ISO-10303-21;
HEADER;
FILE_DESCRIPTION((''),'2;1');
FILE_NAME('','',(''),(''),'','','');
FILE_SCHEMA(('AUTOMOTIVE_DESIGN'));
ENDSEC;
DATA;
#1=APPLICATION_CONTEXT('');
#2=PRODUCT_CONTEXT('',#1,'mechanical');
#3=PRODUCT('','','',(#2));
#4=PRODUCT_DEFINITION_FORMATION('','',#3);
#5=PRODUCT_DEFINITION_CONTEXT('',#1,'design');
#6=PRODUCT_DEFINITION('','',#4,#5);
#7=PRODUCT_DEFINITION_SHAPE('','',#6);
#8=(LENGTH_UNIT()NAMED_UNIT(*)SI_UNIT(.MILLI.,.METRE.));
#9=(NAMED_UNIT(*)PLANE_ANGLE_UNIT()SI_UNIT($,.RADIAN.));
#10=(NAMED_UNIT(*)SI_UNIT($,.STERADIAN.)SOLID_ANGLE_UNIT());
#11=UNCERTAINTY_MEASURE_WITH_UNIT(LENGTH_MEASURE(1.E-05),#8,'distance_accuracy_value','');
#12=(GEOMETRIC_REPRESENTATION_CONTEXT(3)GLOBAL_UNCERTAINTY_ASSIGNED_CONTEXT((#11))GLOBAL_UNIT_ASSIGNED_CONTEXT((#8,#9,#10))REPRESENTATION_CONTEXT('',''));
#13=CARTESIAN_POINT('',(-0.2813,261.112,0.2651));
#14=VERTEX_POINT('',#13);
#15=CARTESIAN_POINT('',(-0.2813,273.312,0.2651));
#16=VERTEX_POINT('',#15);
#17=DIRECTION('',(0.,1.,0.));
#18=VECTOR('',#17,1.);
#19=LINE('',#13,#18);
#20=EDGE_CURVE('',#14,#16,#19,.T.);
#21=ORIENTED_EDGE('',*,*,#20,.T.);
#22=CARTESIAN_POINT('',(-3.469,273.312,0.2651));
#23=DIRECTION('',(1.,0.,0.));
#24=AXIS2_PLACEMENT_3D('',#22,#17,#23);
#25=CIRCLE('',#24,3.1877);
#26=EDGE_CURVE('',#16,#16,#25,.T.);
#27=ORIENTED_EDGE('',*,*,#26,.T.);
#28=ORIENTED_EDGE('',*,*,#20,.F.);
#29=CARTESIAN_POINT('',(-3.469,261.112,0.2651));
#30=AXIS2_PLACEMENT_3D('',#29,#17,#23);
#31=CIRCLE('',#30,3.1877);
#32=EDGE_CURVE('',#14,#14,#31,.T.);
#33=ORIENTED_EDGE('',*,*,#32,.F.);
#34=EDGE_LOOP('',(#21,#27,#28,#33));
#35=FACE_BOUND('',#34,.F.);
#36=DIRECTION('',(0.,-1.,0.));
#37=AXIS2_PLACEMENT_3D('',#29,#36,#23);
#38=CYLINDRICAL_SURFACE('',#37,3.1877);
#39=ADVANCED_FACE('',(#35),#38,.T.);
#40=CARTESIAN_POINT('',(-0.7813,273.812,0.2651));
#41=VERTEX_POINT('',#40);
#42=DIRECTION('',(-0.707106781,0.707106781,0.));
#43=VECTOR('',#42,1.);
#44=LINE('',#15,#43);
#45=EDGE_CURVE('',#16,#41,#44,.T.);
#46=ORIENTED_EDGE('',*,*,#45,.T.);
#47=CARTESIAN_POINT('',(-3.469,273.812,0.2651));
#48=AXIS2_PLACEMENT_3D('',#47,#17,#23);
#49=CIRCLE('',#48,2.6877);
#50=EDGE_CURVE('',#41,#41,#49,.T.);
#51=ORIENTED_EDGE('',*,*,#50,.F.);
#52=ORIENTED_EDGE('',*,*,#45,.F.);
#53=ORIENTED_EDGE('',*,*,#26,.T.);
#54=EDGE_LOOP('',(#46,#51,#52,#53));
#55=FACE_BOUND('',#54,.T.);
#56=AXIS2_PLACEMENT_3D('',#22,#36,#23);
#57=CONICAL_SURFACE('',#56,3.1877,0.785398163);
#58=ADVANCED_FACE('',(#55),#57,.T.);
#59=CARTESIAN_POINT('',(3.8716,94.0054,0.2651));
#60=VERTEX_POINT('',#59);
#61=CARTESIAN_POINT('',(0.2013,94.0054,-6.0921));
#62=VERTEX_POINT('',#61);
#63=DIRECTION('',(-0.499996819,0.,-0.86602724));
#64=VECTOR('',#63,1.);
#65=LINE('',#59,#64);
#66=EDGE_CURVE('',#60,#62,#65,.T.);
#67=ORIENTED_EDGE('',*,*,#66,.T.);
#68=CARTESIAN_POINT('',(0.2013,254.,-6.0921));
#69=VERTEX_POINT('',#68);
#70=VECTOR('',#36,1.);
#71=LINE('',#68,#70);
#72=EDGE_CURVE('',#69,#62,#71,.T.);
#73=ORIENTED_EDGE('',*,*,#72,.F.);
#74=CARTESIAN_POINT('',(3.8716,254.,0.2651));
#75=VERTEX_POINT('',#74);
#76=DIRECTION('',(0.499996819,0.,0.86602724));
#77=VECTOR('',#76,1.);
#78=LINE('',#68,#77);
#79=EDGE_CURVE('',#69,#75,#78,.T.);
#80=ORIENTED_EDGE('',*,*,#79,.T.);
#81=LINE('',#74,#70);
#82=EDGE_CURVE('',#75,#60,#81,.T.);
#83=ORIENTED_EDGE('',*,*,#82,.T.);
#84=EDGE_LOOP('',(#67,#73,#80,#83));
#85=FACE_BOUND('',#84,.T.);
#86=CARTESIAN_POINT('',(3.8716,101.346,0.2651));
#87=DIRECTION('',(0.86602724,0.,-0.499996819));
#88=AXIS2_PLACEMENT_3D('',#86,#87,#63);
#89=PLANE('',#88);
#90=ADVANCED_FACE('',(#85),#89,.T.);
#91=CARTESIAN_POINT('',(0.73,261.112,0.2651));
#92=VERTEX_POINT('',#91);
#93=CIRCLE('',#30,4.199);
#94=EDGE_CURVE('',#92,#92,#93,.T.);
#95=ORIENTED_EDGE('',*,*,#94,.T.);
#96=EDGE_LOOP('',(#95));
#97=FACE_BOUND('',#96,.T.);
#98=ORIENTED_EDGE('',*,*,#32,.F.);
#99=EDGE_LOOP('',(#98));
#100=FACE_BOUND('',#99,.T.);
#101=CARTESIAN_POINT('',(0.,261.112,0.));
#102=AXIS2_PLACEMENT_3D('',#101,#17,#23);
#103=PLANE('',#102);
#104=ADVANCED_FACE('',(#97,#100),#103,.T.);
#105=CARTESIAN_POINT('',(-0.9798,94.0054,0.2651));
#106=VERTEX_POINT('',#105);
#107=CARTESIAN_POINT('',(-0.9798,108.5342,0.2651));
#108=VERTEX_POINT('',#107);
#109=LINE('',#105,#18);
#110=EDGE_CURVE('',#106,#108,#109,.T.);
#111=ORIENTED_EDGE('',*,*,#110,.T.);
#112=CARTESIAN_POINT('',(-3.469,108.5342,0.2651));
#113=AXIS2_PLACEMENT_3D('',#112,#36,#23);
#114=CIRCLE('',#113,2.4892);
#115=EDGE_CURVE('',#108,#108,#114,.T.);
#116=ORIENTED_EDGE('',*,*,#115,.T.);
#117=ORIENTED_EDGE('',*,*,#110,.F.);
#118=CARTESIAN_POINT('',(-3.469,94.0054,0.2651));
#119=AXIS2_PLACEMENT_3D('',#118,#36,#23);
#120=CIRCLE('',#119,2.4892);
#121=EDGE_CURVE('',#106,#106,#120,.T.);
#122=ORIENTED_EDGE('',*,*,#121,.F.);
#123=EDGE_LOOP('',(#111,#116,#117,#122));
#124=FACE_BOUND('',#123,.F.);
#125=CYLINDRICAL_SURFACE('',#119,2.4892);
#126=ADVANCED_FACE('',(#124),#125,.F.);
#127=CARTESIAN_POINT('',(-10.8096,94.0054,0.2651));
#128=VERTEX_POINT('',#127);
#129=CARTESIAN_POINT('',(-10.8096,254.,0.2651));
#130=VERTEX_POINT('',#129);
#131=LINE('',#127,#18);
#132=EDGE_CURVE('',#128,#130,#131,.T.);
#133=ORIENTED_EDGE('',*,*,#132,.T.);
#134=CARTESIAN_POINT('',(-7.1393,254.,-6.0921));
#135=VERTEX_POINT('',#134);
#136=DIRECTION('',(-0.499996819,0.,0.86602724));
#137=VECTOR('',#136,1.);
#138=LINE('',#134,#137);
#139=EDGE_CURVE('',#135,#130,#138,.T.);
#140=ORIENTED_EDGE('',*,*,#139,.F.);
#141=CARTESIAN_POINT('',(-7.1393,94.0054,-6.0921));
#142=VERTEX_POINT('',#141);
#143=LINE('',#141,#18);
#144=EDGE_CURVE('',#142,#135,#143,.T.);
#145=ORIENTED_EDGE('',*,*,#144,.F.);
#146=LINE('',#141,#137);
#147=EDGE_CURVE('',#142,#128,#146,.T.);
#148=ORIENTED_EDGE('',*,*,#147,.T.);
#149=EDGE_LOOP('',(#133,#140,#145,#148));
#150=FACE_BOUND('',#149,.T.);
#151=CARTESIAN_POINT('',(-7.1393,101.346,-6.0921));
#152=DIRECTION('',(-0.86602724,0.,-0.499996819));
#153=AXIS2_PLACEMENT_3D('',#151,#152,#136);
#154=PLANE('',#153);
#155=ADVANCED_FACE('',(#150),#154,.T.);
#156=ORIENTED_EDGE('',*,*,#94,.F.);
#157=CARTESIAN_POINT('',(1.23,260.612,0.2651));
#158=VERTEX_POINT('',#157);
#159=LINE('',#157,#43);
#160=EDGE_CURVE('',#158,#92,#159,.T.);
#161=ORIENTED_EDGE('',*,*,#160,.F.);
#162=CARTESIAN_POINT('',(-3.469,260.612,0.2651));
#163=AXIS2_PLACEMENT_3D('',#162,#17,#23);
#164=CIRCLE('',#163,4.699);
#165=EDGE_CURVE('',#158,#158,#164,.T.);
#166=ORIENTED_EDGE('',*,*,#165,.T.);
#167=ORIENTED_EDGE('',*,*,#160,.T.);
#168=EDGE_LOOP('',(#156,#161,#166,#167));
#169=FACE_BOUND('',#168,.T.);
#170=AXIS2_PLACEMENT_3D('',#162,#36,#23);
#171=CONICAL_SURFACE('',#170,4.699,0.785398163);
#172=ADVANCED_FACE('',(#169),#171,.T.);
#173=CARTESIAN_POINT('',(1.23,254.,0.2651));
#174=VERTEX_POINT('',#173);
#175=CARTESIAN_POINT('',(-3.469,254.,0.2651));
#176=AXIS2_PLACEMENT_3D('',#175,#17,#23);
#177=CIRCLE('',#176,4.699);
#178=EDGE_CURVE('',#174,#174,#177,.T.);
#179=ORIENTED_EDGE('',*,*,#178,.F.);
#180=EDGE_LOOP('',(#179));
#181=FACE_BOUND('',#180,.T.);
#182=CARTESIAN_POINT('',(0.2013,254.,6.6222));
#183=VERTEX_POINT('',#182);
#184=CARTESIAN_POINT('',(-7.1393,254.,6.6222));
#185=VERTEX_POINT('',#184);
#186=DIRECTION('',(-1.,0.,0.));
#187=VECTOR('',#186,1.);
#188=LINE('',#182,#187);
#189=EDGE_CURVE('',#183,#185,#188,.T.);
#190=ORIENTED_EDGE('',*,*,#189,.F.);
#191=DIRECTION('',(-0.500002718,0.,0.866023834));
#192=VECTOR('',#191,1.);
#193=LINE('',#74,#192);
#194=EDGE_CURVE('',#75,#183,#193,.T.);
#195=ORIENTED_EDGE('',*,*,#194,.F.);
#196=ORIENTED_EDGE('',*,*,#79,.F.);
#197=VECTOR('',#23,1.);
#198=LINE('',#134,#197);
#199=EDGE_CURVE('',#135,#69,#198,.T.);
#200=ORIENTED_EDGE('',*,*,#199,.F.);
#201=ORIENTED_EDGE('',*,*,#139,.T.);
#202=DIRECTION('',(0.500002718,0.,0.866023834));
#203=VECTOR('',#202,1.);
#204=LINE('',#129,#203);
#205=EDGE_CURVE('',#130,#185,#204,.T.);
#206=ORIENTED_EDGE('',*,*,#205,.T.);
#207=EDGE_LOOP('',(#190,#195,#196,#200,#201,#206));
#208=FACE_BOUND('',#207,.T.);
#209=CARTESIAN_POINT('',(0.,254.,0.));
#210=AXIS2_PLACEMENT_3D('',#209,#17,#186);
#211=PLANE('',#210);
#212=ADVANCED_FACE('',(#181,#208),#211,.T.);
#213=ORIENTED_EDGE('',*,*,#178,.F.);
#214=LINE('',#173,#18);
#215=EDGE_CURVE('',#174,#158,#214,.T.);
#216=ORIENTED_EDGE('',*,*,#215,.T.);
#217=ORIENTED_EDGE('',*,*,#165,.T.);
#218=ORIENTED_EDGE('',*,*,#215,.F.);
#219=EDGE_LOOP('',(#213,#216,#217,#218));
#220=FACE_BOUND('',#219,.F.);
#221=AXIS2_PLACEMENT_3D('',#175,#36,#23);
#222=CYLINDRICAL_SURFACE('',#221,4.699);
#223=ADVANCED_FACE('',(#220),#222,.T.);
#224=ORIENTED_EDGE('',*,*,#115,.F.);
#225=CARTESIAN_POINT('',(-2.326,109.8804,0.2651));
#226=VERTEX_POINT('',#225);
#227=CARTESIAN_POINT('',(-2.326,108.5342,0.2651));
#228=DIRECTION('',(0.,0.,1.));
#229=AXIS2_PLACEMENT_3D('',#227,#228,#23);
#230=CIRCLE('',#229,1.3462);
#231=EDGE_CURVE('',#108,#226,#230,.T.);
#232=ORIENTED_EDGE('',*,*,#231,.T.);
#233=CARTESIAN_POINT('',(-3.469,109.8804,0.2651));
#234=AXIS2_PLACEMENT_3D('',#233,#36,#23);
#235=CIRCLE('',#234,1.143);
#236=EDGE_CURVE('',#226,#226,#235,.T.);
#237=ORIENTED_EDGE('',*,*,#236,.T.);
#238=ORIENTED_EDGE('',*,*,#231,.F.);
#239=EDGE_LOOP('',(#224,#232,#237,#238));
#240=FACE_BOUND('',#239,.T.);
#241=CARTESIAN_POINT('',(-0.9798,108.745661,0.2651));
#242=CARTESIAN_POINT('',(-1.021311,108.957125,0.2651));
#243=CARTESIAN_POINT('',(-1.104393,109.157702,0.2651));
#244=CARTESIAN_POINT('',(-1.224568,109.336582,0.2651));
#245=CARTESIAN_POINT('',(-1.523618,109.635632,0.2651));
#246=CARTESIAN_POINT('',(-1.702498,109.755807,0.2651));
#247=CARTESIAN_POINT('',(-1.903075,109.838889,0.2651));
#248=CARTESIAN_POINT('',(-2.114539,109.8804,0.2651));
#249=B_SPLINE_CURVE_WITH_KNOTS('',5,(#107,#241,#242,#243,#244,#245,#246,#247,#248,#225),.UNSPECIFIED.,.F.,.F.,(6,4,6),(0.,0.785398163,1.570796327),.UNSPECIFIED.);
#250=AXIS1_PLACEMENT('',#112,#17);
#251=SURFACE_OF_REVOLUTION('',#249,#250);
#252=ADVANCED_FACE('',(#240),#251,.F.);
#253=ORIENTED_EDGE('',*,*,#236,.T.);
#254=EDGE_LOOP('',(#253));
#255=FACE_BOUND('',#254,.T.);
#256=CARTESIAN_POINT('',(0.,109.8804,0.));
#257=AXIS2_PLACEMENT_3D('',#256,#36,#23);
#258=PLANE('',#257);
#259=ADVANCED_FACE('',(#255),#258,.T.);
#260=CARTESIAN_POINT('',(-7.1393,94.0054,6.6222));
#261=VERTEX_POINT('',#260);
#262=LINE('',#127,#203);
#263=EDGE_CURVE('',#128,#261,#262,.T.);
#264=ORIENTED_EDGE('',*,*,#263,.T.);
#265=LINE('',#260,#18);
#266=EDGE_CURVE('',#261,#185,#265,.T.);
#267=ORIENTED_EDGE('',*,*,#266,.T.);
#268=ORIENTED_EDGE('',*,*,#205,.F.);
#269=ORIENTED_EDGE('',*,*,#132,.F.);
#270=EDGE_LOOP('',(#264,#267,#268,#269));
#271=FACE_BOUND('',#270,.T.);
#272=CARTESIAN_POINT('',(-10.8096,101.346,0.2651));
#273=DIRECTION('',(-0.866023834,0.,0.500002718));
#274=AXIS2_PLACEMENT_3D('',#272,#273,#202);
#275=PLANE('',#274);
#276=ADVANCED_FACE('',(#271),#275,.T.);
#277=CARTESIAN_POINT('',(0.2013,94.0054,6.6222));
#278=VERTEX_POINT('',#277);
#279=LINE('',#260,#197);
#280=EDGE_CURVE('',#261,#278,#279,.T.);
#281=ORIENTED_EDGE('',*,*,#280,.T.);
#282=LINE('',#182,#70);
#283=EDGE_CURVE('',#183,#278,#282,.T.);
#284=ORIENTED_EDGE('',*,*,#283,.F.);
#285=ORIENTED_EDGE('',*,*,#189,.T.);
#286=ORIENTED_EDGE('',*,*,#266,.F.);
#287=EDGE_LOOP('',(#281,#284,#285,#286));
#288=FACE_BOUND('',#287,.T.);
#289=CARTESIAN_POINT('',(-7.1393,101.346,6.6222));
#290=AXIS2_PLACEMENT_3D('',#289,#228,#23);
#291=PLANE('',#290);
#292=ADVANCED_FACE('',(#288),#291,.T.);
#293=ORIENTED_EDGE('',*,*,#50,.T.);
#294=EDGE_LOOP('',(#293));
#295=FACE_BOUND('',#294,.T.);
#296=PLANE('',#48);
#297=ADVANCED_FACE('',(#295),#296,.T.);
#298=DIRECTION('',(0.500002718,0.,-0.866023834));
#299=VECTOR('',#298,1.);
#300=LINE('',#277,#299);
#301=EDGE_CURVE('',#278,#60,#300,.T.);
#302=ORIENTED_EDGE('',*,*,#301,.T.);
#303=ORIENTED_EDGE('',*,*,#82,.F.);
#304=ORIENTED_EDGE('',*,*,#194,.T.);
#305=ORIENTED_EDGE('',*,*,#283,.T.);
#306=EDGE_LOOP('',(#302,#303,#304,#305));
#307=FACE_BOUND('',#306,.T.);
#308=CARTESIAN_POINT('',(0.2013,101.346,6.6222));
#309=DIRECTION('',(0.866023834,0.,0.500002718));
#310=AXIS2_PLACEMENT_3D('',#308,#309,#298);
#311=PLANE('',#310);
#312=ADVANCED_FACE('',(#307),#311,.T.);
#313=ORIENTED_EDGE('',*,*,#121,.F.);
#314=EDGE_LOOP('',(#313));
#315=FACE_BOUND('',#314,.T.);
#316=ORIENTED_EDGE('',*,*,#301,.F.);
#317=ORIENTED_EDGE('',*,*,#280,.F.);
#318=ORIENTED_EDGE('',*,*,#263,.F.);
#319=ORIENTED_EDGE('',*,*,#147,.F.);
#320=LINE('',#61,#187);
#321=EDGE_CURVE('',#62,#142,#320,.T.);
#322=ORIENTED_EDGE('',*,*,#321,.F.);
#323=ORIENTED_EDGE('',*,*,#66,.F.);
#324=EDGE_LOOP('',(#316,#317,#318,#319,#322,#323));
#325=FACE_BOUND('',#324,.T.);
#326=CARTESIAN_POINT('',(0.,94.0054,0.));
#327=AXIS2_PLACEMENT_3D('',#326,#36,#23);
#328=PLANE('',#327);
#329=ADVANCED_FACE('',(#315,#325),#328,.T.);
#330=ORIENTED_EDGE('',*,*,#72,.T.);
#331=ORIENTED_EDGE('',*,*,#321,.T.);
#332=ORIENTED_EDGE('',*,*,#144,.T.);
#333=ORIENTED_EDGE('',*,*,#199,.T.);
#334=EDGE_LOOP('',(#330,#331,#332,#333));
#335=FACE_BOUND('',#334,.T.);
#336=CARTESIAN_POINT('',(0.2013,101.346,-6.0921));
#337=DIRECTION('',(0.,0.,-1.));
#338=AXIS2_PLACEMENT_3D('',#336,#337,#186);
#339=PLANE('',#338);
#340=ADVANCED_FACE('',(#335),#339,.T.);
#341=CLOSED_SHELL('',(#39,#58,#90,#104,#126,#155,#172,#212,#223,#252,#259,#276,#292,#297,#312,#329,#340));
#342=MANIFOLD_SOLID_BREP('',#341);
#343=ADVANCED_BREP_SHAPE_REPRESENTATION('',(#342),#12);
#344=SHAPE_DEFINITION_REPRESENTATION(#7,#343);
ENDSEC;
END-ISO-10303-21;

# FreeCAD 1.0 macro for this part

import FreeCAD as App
import Part
import Sketcher
Q = App.Units.Quantity


def edges_at(feature, points):
    """Names of the edges that pass closest to the given points."""
    edges = feature.Shape.Edges
    near = lambda p: min(range(len(edges)), key=lambda i: edges[i].distToShape(Part.Vertex(*p))[0])
    return sorted({f"Edge{near(p) + 1}" for p in points})

doc = App.newDocument("Part")
params = doc.addObject("Spreadsheet::Sheet", "Params")
for row, (alias, value) in enumerate([
    ("sketch1_width", "0.289 in"),
    ("sketch1_length", "0.289 in"),
    ("pad1_length", "10 in"),
    ("sketch2_diameter", "0.37 in"),
    ("pad2_length", "0.28 in"),
    ("chamfer_size", "0.5 mm"),
    ("sketch3_diameter", "0.251 in"),
    ("pad3_length", "0.5 in"),
    ("chamfer2_size", "0.5 mm"),
    ("sketch4_width", "0.289 in"),
    ("sketch4_length", "0.289 in"),
    ("pocket1_length", "3.99 in"),
    ("sketch5_width", "0.289 in"),
    ("sketch5_length", "0.289 in"),
    ("pad4_length", "0.289 in"),
    ("sketch6_diameter", "0.196 in"),
    ("pocket2_length", "0.625 in"),
    ("fillet_radius", "0.053 in"),
], start=1):
    params.set(f"A{row}", alias)
    params.set(f"B{row}", "=" + value)
    params.setAlias(f"B{row}", alias)

body = doc.addObject("PartDesign::Body", "Body")

sketch1 = doc.addObject("Sketcher::SketchObject", "Sketch")
body.addObject(sketch1)
sketch1.AttachmentSupport = (doc.XZ_Plane, [""])
sketch1.MapMode = "FlatFace"
sketch1.addGeometry([
    Part.LineSegment(App.Vector(0, -6, 0), App.Vector(-7, -6, 0)),
    Part.LineSegment(App.Vector(-7, -6, 0), App.Vector(-11, 0, 0)),
    Part.LineSegment(App.Vector(-11, 0, 0), App.Vector(-7, 7, 0)),
    Part.LineSegment(App.Vector(-7, 7, 0), App.Vector(0, 7, 0)),
    Part.LineSegment(App.Vector(0, 7, 0), App.Vector(4, 0, 0)),
    Part.LineSegment(App.Vector(4, 0, 0), App.Vector(0, -6, 0)),
], False)
sketch1.addConstraint([
    Sketcher.Constraint("Coincident", 0, 2, 1, 1),
    Sketcher.Constraint("Coincident", 1, 2, 2, 1),
    Sketcher.Constraint("Coincident", 2, 2, 3, 1),
    Sketcher.Constraint("Coincident", 3, 2, 4, 1),
    Sketcher.Constraint("Coincident", 4, 2, 5, 1),
    Sketcher.Constraint("Coincident", 5, 2, 0, 1),
    Sketcher.Constraint("Horizontal", 0),
    Sketcher.Constraint("Horizontal", 3),
    Sketcher.Constraint("Parallel", 1, 4),
    Sketcher.Constraint("Parallel", 2, 5),
    Sketcher.Constraint("Horizontal", 1, 2, 4, 2),
    Sketcher.Constraint("Vertical", 0, 2, 2, 2),
    Sketcher.Constraint("Vertical", 3, 2, 5, 2),
    Sketcher.Constraint("Angle", 1, Q("119.9998 deg")),
    Sketcher.Constraint("DistanceX", 0, 2, 0, 1, Q("0.289 in")),
    Sketcher.Constraint("Distance", 1, Q("0.289 in")),
    Sketcher.Constraint("DistanceX", 0, 2, -1, 1, 7.1393),
    Sketcher.Constraint("DistanceY", 0, 2, -1, 1, 6.092),
])
sketch1.setExpression("Constraints[14]", "Params.sketch1_width")
sketch1.setExpression("Constraints[15]", "Params.sketch1_length")
pad1 = doc.addObject("PartDesign::Pad", "Pad")
body.addObject(pad1)
pad1.Profile = sketch1
pad1.setExpression("Length", "Params.pad1_length")
pad1.Reversed = True

sketch2 = doc.addObject("Sketcher::SketchObject", "Sketch001")
body.addObject(sketch2)
sketch2.AttachmentSupport = (doc.XZ_Plane, [""])
sketch2.MapMode = "FlatFace"
sketch2.AttachmentOffset = App.Placement(App.Vector(0, 0, -10 * 25.4), App.Rotation())
sketch2.addGeometry(Part.Circle(App.Vector(-3.5, 0.3, 0), App.Vector(0, 0, 1), 4.7), False)
sketch2.addConstraint([
    Sketcher.Constraint("Diameter", 0, Q("0.37 in")),
    Sketcher.Constraint("DistanceX", 0, 3, -1, 1, 3.469),
    Sketcher.Constraint("DistanceY", -1, 1, 0, 3, 0.265),
])
sketch2.setExpression("Constraints[0]", "Params.sketch2_diameter")
pad2 = doc.addObject("PartDesign::Pad", "Pad001")
body.addObject(pad2)
pad2.Profile = sketch2
pad2.setExpression("Length", "Params.pad2_length")
pad2.Reversed = True
doc.recompute()

chamfer = doc.addObject("PartDesign::Chamfer", "Chamfer")
body.addObject(chamfer)
chamfer.Base = (pad2, edges_at(pad2, [(-8.168, 261.112, 0.265)]))
chamfer.setExpression("Size", "Params.chamfer_size")

sketch3 = doc.addObject("Sketcher::SketchObject", "Sketch002")
body.addObject(sketch3)
sketch3.AttachmentSupport = (doc.XZ_Plane, [""])
sketch3.MapMode = "FlatFace"
sketch3.AttachmentOffset = App.Placement(App.Vector(0, 0, -10.28 * 25.4), App.Rotation())
sketch3.addGeometry(Part.Circle(App.Vector(-3.5, 0.3, 0), App.Vector(0, 0, 1), 3.2), False)
sketch3.addConstraint([
    Sketcher.Constraint("Diameter", 0, Q("0.251 in")),
    Sketcher.Constraint("DistanceX", 0, 3, -1, 1, 3.469),
    Sketcher.Constraint("DistanceY", -1, 1, 0, 3, 0.265),
])
sketch3.setExpression("Constraints[0]", "Params.sketch3_diameter")
pad3 = doc.addObject("PartDesign::Pad", "Pad002")
body.addObject(pad3)
pad3.Profile = sketch3
pad3.setExpression("Length", "Params.pad3_length")
pad3.Reversed = True
doc.recompute()

chamfer2 = doc.addObject("PartDesign::Chamfer", "Chamfer001")
body.addObject(chamfer2)
chamfer2.Base = (pad3, edges_at(pad3, [(-6.657, 273.812, 0.265)]))
chamfer2.setExpression("Size", "Params.chamfer2_size")

sketch4 = doc.addObject("Sketcher::SketchObject", "Sketch003")
body.addObject(sketch4)
sketch4.AttachmentSupport = (doc.XZ_Plane, [""])
sketch4.MapMode = "FlatFace"
sketch4.addGeometry([
    Part.LineSegment(App.Vector(-11, 0, 0), App.Vector(-7, -6, 0)),
    Part.LineSegment(App.Vector(-7, -6, 0), App.Vector(0, -6, 0)),
    Part.LineSegment(App.Vector(0, -6, 0), App.Vector(4, 0, 0)),
    Part.LineSegment(App.Vector(4, 0, 0), App.Vector(0, 7, 0)),
    Part.LineSegment(App.Vector(0, 7, 0), App.Vector(-7, 7, 0)),
    Part.LineSegment(App.Vector(-7, 7, 0), App.Vector(-11, 0, 0)),
], False)
sketch4.addConstraint([
    Sketcher.Constraint("Coincident", 0, 2, 1, 1),
    Sketcher.Constraint("Coincident", 1, 2, 2, 1),
    Sketcher.Constraint("Coincident", 2, 2, 3, 1),
    Sketcher.Constraint("Coincident", 3, 2, 4, 1),
    Sketcher.Constraint("Coincident", 4, 2, 5, 1),
    Sketcher.Constraint("Coincident", 5, 2, 0, 1),
    Sketcher.Constraint("Horizontal", 1),
    Sketcher.Constraint("Horizontal", 4),
    Sketcher.Constraint("Parallel", 0, 3),
    Sketcher.Constraint("Parallel", 2, 5),
    Sketcher.Constraint("Horizontal", 2, 2, 5, 2),
    Sketcher.Constraint("Vertical", 1, 2, 3, 2),
    Sketcher.Constraint("Vertical", 0, 2, 4, 2),
    Sketcher.Constraint("Angle", 0, Q("-60.0002 deg")),
    Sketcher.Constraint("DistanceX", 1, 1, 1, 2, Q("0.289 in")),
    Sketcher.Constraint("Distance", 0, Q("0.289 in")),
    Sketcher.Constraint("DistanceX", 0, 2, -1, 1, 7.1393),
    Sketcher.Constraint("DistanceY", 0, 2, -1, 1, 6.092),
])
sketch4.setExpression("Constraints[14]", "Params.sketch4_width")
sketch4.setExpression("Constraints[15]", "Params.sketch4_length")
pocket1 = doc.addObject("PartDesign::Pocket", "Pocket")
body.addObject(pocket1)
pocket1.Profile = sketch4
pocket1.setExpression("Length", "Params.pocket1_length")

sketch5 = doc.addObject("Sketcher::SketchObject", "Sketch004")
body.addObject(sketch5)
sketch5.AttachmentSupport = (doc.XZ_Plane, [""])
sketch5.MapMode = "FlatFace"
sketch5.AttachmentOffset = App.Placement(App.Vector(0, 0, -3.99 * 25.4), App.Rotation())
sketch5.addGeometry([
    Part.LineSegment(App.Vector(-7, -6, 0), App.Vector(0, -6, 0)),
    Part.LineSegment(App.Vector(0, -6, 0), App.Vector(4, 0, 0)),
    Part.LineSegment(App.Vector(4, 0, 0), App.Vector(0, 7, 0)),
    Part.LineSegment(App.Vector(0, 7, 0), App.Vector(-7, 7, 0)),
    Part.LineSegment(App.Vector(-7, 7, 0), App.Vector(-11, 0, 0)),
    Part.LineSegment(App.Vector(-11, 0, 0), App.Vector(-7, -6, 0)),
], False)
sketch5.addConstraint([
    Sketcher.Constraint("Coincident", 0, 2, 1, 1),
    Sketcher.Constraint("Coincident", 1, 2, 2, 1),
    Sketcher.Constraint("Coincident", 2, 2, 3, 1),
    Sketcher.Constraint("Coincident", 3, 2, 4, 1),
    Sketcher.Constraint("Coincident", 4, 2, 5, 1),
    Sketcher.Constraint("Coincident", 5, 2, 0, 1),
    Sketcher.Constraint("Horizontal", 0),
    Sketcher.Constraint("Horizontal", 3),
    Sketcher.Constraint("Parallel", 1, 4),
    Sketcher.Constraint("Parallel", 2, 5),
    Sketcher.Constraint("Horizontal", 1, 2, 4, 2),
    Sketcher.Constraint("Vertical", 0, 2, 2, 2),
    Sketcher.Constraint("Vertical", 3, 2, 5, 2),
    Sketcher.Constraint("Angle", 1, Q("60.0002 deg")),
    Sketcher.Constraint("DistanceX", 0, 1, 0, 2, Q("0.289 in")),
    Sketcher.Constraint("Distance", 1, Q("0.289 in")),
    Sketcher.Constraint("DistanceX", -1, 1, 0, 2, 0.2013),
    Sketcher.Constraint("DistanceY", 0, 2, -1, 1, 6.092),
])
sketch5.setExpression("Constraints[14]", "Params.sketch5_width")
sketch5.setExpression("Constraints[15]", "Params.sketch5_length")
pad4 = doc.addObject("PartDesign::Pad", "Pad003")
body.addObject(pad4)
pad4.Profile = sketch5
pad4.setExpression("Length", "Params.pad4_length")

sketch6 = doc.addObject("Sketcher::SketchObject", "Sketch005")
body.addObject(sketch6)
sketch6.AttachmentSupport = (doc.XZ_Plane, [""])
sketch6.MapMode = "FlatFace"
sketch6.AttachmentOffset = App.Placement(App.Vector(0, 0, -3.701 * 25.4), App.Rotation())
sketch6.addGeometry(Part.Circle(App.Vector(-3.5, 0.3, 0), App.Vector(0, 0, 1), 2.5), False)
sketch6.addConstraint([
    Sketcher.Constraint("Diameter", 0, Q("0.196 in")),
    Sketcher.Constraint("DistanceX", 0, 3, -1, 1, 3.469),
    Sketcher.Constraint("DistanceY", -1, 1, 0, 3, 0.265),
])
sketch6.setExpression("Constraints[0]", "Params.sketch6_diameter")
pocket2 = doc.addObject("PartDesign::Pocket", "Pocket001")
body.addObject(pocket2)
pocket2.Profile = sketch6
pocket2.setExpression("Length", "Params.pocket2_length")
doc.recompute()

fillet = doc.addObject("PartDesign::Fillet", "Fillet")
body.addObject(fillet)
fillet.Base = (pocket2, edges_at(pocket2, [(-5.958, 109.88, 0.265)]))
fillet.setExpression("Radius", "Params.fillet_radius")

doc.recompute()
